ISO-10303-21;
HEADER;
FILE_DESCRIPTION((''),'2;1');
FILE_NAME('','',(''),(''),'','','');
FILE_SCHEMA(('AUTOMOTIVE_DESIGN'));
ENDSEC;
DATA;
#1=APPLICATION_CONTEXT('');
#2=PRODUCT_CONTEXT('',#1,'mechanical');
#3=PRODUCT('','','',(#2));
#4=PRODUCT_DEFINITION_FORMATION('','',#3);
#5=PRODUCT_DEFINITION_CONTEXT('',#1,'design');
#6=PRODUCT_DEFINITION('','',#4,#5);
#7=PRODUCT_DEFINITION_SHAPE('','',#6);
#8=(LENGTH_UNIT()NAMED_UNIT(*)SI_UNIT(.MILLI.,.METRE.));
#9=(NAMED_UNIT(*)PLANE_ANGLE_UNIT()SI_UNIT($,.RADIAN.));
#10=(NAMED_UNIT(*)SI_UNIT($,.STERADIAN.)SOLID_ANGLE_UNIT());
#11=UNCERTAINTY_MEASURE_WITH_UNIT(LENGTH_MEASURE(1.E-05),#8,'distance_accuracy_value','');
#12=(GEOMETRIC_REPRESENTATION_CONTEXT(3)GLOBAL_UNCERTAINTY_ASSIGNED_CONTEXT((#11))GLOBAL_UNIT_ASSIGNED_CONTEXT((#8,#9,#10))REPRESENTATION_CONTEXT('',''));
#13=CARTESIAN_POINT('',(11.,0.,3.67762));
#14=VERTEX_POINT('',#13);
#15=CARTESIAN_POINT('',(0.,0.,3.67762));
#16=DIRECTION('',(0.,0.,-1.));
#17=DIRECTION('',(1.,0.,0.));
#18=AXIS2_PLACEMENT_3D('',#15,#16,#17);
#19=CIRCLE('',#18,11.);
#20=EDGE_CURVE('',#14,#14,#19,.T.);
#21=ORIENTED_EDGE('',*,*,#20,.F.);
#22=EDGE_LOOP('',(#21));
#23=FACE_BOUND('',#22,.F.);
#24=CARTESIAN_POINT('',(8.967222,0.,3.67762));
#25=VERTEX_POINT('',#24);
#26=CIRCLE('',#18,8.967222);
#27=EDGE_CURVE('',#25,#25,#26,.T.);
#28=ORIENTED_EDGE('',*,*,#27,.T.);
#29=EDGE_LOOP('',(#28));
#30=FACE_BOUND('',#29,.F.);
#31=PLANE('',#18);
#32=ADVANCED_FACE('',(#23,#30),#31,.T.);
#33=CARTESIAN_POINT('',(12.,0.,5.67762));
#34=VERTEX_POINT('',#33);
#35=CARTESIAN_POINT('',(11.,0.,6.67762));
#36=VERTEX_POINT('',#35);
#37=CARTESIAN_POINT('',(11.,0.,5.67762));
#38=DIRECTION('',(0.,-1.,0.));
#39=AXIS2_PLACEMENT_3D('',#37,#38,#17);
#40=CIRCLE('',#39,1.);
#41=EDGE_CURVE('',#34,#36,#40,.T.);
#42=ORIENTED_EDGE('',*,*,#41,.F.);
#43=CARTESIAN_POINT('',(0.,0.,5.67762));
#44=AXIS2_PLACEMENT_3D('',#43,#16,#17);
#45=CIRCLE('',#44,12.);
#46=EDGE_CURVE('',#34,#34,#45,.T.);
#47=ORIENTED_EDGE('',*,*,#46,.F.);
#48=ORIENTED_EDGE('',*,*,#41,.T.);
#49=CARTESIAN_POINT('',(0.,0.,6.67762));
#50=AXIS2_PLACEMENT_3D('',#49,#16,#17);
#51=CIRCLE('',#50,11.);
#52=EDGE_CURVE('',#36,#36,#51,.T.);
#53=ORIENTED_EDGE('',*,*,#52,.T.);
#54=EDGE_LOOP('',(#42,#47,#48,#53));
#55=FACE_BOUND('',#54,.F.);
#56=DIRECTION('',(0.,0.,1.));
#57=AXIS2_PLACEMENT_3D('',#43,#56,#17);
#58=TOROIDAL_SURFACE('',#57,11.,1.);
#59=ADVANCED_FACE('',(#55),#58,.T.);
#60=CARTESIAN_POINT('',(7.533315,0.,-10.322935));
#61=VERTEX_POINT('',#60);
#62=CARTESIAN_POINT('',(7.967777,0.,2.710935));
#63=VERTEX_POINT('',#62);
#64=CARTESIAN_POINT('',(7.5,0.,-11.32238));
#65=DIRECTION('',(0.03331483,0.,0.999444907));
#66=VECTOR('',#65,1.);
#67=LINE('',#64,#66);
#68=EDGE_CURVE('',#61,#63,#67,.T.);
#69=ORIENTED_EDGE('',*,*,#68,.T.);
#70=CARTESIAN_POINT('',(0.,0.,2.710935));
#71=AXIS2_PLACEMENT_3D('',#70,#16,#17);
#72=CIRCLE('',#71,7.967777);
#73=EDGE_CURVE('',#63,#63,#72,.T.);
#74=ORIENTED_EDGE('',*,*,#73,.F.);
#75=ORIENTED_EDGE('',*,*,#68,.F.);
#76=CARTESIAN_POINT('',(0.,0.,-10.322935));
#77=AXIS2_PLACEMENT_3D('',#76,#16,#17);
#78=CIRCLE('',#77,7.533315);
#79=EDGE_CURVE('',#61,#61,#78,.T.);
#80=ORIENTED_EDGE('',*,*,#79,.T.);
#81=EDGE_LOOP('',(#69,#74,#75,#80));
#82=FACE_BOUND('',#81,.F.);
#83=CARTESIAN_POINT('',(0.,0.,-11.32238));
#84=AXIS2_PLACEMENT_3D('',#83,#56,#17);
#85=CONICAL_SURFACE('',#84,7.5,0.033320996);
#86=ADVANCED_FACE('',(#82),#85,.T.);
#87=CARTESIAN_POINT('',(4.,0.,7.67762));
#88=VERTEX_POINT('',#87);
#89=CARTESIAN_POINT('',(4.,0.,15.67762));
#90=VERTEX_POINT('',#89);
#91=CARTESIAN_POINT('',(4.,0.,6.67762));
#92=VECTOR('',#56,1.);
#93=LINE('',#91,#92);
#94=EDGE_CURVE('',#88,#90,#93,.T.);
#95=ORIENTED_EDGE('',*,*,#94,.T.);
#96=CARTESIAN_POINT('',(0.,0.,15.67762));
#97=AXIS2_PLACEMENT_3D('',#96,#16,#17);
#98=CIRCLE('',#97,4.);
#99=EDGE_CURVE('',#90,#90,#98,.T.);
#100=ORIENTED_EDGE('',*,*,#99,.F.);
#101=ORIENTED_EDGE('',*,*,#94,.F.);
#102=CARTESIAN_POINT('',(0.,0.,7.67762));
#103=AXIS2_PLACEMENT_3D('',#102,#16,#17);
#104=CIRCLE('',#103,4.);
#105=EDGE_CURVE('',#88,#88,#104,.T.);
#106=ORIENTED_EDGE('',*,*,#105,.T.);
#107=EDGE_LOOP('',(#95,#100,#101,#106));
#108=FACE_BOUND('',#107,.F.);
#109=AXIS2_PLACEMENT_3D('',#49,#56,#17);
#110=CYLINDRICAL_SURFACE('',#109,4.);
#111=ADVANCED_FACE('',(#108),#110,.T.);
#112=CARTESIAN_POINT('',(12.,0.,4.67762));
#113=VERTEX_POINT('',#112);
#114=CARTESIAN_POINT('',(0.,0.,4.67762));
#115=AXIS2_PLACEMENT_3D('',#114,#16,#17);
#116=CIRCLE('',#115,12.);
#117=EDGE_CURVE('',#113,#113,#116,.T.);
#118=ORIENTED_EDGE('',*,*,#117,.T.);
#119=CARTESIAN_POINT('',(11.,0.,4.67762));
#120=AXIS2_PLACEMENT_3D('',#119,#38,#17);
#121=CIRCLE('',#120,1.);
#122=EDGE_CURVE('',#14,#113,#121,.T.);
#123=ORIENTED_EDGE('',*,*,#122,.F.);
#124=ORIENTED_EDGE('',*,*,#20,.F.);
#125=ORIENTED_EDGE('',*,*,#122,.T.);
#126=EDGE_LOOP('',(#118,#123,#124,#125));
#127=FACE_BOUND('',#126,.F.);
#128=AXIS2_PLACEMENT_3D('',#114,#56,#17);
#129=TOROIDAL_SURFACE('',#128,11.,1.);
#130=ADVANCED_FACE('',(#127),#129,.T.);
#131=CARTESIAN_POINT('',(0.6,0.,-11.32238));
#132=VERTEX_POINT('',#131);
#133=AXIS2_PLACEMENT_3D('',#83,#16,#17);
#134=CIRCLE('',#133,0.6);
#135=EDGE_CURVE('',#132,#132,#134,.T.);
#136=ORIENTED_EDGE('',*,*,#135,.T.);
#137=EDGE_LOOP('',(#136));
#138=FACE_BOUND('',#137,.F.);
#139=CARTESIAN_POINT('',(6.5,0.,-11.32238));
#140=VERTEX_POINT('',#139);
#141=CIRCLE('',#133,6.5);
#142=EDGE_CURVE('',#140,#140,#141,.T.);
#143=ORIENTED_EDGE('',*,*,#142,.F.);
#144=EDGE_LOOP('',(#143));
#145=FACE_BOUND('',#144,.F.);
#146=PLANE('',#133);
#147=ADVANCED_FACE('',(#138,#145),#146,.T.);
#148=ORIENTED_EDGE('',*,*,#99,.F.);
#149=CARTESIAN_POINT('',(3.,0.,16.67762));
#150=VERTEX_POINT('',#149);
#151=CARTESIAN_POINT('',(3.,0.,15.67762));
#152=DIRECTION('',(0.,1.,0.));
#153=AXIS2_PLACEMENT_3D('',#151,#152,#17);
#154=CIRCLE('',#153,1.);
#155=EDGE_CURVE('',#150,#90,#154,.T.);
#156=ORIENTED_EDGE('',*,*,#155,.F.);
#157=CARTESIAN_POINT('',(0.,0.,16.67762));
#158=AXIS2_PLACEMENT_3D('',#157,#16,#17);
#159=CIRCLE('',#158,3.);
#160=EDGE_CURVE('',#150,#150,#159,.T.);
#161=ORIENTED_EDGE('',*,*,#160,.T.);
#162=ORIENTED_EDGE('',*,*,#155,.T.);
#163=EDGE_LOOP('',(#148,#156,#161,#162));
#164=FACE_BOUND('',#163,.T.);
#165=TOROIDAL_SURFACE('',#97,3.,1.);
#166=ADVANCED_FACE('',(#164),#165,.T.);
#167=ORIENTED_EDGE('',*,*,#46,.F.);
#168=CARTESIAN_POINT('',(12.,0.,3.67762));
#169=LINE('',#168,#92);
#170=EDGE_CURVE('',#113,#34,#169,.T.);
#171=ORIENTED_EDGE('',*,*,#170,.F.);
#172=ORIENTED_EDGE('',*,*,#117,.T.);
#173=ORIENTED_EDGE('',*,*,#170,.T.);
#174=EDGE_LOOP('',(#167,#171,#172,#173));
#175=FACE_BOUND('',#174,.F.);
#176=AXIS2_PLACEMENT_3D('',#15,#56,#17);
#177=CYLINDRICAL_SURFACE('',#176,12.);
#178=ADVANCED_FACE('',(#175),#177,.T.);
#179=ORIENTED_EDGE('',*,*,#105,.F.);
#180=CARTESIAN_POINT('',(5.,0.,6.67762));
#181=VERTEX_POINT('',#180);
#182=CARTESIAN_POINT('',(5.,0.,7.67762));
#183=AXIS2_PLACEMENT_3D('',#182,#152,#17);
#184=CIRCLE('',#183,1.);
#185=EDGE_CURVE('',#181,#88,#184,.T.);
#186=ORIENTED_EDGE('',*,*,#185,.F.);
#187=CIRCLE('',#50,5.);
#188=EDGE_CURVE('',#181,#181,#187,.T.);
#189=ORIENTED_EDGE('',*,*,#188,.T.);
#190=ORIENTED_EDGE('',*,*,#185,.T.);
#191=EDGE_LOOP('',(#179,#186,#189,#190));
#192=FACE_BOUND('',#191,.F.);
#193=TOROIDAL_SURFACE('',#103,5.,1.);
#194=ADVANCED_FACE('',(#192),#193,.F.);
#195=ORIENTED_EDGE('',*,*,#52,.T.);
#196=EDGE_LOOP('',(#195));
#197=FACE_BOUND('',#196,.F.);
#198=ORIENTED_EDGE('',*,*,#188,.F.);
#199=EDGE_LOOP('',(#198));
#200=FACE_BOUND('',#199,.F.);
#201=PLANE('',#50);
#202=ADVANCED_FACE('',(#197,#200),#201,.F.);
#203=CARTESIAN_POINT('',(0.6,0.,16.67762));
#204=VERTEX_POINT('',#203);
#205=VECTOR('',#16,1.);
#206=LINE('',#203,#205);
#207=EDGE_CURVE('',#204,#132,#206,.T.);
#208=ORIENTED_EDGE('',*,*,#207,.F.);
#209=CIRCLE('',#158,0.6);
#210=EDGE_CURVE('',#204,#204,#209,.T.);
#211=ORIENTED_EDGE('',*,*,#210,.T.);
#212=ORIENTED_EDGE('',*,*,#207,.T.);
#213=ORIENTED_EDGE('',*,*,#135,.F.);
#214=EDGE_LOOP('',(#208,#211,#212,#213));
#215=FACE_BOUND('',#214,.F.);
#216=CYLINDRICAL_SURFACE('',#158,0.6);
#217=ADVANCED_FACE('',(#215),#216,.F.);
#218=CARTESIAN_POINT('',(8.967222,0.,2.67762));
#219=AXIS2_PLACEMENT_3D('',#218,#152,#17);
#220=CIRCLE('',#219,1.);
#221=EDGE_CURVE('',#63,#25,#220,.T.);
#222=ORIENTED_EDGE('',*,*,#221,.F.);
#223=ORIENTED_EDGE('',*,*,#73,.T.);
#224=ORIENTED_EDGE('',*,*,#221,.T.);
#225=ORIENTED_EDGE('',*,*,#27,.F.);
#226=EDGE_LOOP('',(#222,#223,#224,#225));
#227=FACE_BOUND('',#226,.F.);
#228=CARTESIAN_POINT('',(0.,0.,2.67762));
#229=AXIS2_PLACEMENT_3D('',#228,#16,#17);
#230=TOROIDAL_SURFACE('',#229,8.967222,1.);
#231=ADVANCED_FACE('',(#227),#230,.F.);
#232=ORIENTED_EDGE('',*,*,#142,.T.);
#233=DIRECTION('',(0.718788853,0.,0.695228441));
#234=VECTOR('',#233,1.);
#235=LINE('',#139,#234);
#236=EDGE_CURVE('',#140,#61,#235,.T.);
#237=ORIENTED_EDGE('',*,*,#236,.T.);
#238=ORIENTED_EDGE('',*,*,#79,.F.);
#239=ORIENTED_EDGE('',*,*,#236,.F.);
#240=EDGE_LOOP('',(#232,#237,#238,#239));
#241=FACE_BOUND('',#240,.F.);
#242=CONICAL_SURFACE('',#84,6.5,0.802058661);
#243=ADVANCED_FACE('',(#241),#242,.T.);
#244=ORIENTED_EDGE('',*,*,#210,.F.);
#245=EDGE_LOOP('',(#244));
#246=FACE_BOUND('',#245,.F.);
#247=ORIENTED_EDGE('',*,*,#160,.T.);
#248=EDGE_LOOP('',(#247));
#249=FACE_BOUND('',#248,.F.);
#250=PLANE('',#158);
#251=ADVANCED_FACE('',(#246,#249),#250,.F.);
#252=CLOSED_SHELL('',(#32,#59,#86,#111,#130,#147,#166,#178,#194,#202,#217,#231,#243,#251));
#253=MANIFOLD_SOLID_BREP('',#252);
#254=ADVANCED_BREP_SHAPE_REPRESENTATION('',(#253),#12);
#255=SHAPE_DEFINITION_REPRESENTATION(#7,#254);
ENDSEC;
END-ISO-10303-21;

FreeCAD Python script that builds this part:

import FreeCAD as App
import Part
import Sketcher
from FreeCAD import Vector
Q = App.Units.Quantity


def edges_at(feature, points):
    """Names of the edges that pass closest to the given points."""
    edges = feature.Shape.Edges
    near = lambda p: min(range(len(edges)), key=lambda i: edges[i].distToShape(Part.Vertex(*p))[0])
    return sorted({f"Edge{near(p) + 1}" for p in points})


def add_polygon(sketch, points):
    """Adds a closed chain of lines whose ends are joined by coincident constraints."""
    first, n = sketch.GeometryCount, len(points)
    for a, b in zip(points, points[1:] + points[:1]):
        sketch.addGeometry(Part.LineSegment(App.Vector(*a, 0), App.Vector(*b, 0)), False)
    for i in range(n):
        sketch.addConstraint(Sketcher.Constraint("Coincident", first + i, 2, first + (i + 1) % n, 1))

doc = App.newDocument("Part")
params = doc.addObject("Spreadsheet::Sheet", "Params")
for row, (alias, value) in enumerate([
    ("sketch1_width", "4 mm"),
    ("sketch1_width2", "8 mm"),
    ("sketch1_height", "28 mm"),
    ("sketch1_height2", "3 mm"),
    ("sketch1_height3", "10 mm"),
    ("revolution_angle", "360 deg"),
    ("fillet_radius", "1 mm"),
    ("chamfer_size", "1 mm"),
], start=1):
    params.set(f"A{row}", alias)
    params.set(f"B{row}", "=" + value)
    params.setAlias(f"B{row}", alias)

body = doc.addObject("PartDesign::Body", "Body")

# Sketch on XZ plane
sketch1 = body.newObject("Sketcher::SketchObject", "Sketch")
sketch1.AttachmentSupport = (doc.getObject("XZ_Plane"), [""])
sketch1.MapMode = "FlatFace"
add_polygon(sketch1, [(4, 16.7), (0.6, 16.7), (0.6, -11.3), (7.5, -11.3), (8, 3.7), (12, 3.7), (12, 6.7), (4, 6.7)])  # lines 0-7
sketch1.addConstraint(Sketcher.Constraint("Horizontal", 0))
sketch1.addConstraint(Sketcher.Constraint("Vertical", 1))
sketch1.addConstraint(Sketcher.Constraint("Horizontal", 2))
sketch1.addConstraint(Sketcher.Constraint("Horizontal", 4))
sketch1.addConstraint(Sketcher.Constraint("Vertical", 5))
sketch1.addConstraint(Sketcher.Constraint("Horizontal", 6))
sketch1.addConstraint(Sketcher.Constraint("Vertical", 7))
sketch1.addConstraint(Sketcher.Constraint("DistanceX", 4, 1, 4, 2, Q("4 mm")))
sketch1.addConstraint(Sketcher.Constraint("DistanceX", 6, 2, 6, 1, Q("8 mm")))
sketch1.addConstraint(Sketcher.Constraint("DistanceY", 1, 2, 1, 1, Q("28 mm")))
sketch1.addConstraint(Sketcher.Constraint("DistanceY", 5, 1, 5, 2, Q("3 mm")))
sketch1.addConstraint(Sketcher.Constraint("DistanceY", 7, 1, 7, 2, Q("10 mm")))
sketch1.addConstraint(Sketcher.Constraint("DistanceX", 0, 2, 0, 1, Q("3.4 mm")))
sketch1.addConstraint(Sketcher.Constraint("DistanceX", 2, 1, 2, 2, Q("6.9 mm")))
sketch1.addConstraint(Sketcher.Constraint("DistanceX", -1, 1, 3, 2, Q("8 mm")))
sketch1.addConstraint(Sketcher.Constraint("DistanceY", -1, 1, 0, 2, Q("16.67762 mm")))
sketch1.setExpression("Constraints[15]", "Params.sketch1_width")
sketch1.setExpression("Constraints[16]", "Params.sketch1_width2")
sketch1.setExpression("Constraints[17]", "Params.sketch1_height")
sketch1.setExpression("Constraints[18]", "Params.sketch1_height2")
sketch1.setExpression("Constraints[19]", "Params.sketch1_height3")
revolution = body.newObject("PartDesign::Revolution", "Revolution")
revolution.Profile = sketch1
revolution.ReferenceAxis = (sketch1, ["V_Axis"])
revolution.setExpression("Angle", "Params.revolution_angle")
doc.recompute()

fillet = body.newObject("PartDesign::Fillet", "Fillet")
fillet.Base = (revolution, edges_at(revolution, [
    (-8, 0, 3.678),
    (-12, 0, 3.678),
    (-12, 0, 6.678),
    (-4, 0, 16.678),
    (-4, 0, 6.678),
]))
fillet.setExpression("Radius", "Params.fillet_radius")
doc.recompute()

chamfer = body.newObject("PartDesign::Chamfer", "Chamfer")
chamfer.Base = (fillet, edges_at(fillet, [(-7.5, 0, -11.322)]))
chamfer.setExpression("Size", "Params.chamfer_size")

doc.recompute()
